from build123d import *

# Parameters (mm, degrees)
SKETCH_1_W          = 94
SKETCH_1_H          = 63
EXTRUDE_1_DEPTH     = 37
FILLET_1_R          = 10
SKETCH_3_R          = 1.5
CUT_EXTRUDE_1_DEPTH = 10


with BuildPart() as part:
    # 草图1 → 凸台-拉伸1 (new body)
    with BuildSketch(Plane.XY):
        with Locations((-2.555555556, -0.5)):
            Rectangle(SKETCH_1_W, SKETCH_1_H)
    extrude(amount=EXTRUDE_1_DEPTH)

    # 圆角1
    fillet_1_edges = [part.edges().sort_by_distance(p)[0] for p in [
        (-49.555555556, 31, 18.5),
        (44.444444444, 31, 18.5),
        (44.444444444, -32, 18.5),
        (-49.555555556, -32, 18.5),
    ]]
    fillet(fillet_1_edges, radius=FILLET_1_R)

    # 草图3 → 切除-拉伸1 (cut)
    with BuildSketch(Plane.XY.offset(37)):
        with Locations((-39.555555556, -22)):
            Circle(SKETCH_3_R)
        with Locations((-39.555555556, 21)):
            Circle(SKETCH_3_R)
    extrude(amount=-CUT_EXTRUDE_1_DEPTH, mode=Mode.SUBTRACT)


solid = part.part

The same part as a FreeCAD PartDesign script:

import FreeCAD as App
import Part
import Sketcher
from FreeCAD import Vector


def edges_at(feature, points):
    """Names of the edges that pass closest to the given points."""
    edges = feature.Shape.Edges
    near = lambda p: min(range(len(edges)), key=lambda i: edges[i].distToShape(Part.Vertex(*p))[0])
    return sorted({f"Edge{near(p) + 1}" for p in points})


def add_polygon(sketch, points):
    """Adds a closed chain of lines whose ends are joined by coincident constraints."""
    first, n = sketch.GeometryCount, len(points)
    for a, b in zip(points, points[1:] + points[:1]):
        sketch.addGeometry(Part.LineSegment(App.Vector(*a, 0), App.Vector(*b, 0)), False)
    for i in range(n):
        sketch.addConstraint(Sketcher.Constraint("Coincident", first + i, 2, first + (i + 1) % n, 1))

doc = App.newDocument("Part")
body = doc.addObject("PartDesign::Body", "Body")

# Sketch on XY plane
sketch1 = doc.addObject("Sketcher::SketchObject", "Sketch")
body.addObject(sketch1)
sketch1.AttachmentSupport = (doc.XY_Plane, [""])
sketch1.MapMode = "FlatFace"
add_polygon(sketch1, [(-49.555556, 31), (-49.555556, -32), (44.444444, -32), (44.444444, 31)])  # lines 0-3
sketch1.addConstraint([
    Sketcher.Constraint("Vertical", 0),
    Sketcher.Constraint("Horizontal", 1),
    Sketcher.Constraint("Vertical", 2),
    Sketcher.Constraint("Horizontal", 3),
    Sketcher.Constraint("DistanceX", 1, 1, 1, 2, 94.0),
    Sketcher.Constraint("DistanceY", 0, 2, 0, 1, 63.0),
    Sketcher.Constraint("DistanceY", 0, 2, -1, 1, 32.0),
    Sketcher.Constraint("DistanceX", 0, 2, -1, 1, 49.555556),
])
pad1 = doc.addObject("PartDesign::Pad", "Pad")
body.addObject(pad1)
pad1.Profile = sketch1
pad1.Length = 37
doc.recompute()

fillet = doc.addObject("PartDesign::Fillet", "Fillet")
body.addObject(fillet)
fillet.Base = (pad1, edges_at(pad1, [
    (-49.556, 31, 18.5),
    (44.444, 31, 18.5),
    (44.444, -32, 18.5),
    (-49.556, -32, 18.5),
]))
fillet.Radius = 10

# Sketch on XY plane
sketch2 = doc.addObject("Sketcher::SketchObject", "Sketch001")
body.addObject(sketch2)
sketch2.AttachmentSupport = (doc.XY_Plane, [""])
sketch2.MapMode = "FlatFace"
sketch2.AttachmentOffset = App.Placement(Vector(0, 0, 37), App.Rotation())
sketch2.addGeometry([
    Part.Circle(Vector(-39.555556, -22, 0), Vector(0, 0, 1), 1.5),
    Part.Circle(Vector(-39.555556, 21, 0), Vector(0, 0, 1), 1.5),
], False)
sketch2.addConstraint([
    Sketcher.Constraint("Equal", 0, 1),
    Sketcher.Constraint("Vertical", 0, 3, 1, 3),
    Sketcher.Constraint("Diameter", 0, 3.0),
    Sketcher.Constraint("DistanceY", 0, 3, -1, 1, 22.0),
    Sketcher.Constraint("DistanceY", -1, 1, 1, 3, 21.0),
    Sketcher.Constraint("DistanceX", 0, 3, -1, 1, 39.555556),
])
pocket1 = doc.addObject("PartDesign::Pocket", "Pocket")
body.addObject(pocket1)
pocket1.Profile = sketch2
pocket1.Length = 10

doc.recompute()
